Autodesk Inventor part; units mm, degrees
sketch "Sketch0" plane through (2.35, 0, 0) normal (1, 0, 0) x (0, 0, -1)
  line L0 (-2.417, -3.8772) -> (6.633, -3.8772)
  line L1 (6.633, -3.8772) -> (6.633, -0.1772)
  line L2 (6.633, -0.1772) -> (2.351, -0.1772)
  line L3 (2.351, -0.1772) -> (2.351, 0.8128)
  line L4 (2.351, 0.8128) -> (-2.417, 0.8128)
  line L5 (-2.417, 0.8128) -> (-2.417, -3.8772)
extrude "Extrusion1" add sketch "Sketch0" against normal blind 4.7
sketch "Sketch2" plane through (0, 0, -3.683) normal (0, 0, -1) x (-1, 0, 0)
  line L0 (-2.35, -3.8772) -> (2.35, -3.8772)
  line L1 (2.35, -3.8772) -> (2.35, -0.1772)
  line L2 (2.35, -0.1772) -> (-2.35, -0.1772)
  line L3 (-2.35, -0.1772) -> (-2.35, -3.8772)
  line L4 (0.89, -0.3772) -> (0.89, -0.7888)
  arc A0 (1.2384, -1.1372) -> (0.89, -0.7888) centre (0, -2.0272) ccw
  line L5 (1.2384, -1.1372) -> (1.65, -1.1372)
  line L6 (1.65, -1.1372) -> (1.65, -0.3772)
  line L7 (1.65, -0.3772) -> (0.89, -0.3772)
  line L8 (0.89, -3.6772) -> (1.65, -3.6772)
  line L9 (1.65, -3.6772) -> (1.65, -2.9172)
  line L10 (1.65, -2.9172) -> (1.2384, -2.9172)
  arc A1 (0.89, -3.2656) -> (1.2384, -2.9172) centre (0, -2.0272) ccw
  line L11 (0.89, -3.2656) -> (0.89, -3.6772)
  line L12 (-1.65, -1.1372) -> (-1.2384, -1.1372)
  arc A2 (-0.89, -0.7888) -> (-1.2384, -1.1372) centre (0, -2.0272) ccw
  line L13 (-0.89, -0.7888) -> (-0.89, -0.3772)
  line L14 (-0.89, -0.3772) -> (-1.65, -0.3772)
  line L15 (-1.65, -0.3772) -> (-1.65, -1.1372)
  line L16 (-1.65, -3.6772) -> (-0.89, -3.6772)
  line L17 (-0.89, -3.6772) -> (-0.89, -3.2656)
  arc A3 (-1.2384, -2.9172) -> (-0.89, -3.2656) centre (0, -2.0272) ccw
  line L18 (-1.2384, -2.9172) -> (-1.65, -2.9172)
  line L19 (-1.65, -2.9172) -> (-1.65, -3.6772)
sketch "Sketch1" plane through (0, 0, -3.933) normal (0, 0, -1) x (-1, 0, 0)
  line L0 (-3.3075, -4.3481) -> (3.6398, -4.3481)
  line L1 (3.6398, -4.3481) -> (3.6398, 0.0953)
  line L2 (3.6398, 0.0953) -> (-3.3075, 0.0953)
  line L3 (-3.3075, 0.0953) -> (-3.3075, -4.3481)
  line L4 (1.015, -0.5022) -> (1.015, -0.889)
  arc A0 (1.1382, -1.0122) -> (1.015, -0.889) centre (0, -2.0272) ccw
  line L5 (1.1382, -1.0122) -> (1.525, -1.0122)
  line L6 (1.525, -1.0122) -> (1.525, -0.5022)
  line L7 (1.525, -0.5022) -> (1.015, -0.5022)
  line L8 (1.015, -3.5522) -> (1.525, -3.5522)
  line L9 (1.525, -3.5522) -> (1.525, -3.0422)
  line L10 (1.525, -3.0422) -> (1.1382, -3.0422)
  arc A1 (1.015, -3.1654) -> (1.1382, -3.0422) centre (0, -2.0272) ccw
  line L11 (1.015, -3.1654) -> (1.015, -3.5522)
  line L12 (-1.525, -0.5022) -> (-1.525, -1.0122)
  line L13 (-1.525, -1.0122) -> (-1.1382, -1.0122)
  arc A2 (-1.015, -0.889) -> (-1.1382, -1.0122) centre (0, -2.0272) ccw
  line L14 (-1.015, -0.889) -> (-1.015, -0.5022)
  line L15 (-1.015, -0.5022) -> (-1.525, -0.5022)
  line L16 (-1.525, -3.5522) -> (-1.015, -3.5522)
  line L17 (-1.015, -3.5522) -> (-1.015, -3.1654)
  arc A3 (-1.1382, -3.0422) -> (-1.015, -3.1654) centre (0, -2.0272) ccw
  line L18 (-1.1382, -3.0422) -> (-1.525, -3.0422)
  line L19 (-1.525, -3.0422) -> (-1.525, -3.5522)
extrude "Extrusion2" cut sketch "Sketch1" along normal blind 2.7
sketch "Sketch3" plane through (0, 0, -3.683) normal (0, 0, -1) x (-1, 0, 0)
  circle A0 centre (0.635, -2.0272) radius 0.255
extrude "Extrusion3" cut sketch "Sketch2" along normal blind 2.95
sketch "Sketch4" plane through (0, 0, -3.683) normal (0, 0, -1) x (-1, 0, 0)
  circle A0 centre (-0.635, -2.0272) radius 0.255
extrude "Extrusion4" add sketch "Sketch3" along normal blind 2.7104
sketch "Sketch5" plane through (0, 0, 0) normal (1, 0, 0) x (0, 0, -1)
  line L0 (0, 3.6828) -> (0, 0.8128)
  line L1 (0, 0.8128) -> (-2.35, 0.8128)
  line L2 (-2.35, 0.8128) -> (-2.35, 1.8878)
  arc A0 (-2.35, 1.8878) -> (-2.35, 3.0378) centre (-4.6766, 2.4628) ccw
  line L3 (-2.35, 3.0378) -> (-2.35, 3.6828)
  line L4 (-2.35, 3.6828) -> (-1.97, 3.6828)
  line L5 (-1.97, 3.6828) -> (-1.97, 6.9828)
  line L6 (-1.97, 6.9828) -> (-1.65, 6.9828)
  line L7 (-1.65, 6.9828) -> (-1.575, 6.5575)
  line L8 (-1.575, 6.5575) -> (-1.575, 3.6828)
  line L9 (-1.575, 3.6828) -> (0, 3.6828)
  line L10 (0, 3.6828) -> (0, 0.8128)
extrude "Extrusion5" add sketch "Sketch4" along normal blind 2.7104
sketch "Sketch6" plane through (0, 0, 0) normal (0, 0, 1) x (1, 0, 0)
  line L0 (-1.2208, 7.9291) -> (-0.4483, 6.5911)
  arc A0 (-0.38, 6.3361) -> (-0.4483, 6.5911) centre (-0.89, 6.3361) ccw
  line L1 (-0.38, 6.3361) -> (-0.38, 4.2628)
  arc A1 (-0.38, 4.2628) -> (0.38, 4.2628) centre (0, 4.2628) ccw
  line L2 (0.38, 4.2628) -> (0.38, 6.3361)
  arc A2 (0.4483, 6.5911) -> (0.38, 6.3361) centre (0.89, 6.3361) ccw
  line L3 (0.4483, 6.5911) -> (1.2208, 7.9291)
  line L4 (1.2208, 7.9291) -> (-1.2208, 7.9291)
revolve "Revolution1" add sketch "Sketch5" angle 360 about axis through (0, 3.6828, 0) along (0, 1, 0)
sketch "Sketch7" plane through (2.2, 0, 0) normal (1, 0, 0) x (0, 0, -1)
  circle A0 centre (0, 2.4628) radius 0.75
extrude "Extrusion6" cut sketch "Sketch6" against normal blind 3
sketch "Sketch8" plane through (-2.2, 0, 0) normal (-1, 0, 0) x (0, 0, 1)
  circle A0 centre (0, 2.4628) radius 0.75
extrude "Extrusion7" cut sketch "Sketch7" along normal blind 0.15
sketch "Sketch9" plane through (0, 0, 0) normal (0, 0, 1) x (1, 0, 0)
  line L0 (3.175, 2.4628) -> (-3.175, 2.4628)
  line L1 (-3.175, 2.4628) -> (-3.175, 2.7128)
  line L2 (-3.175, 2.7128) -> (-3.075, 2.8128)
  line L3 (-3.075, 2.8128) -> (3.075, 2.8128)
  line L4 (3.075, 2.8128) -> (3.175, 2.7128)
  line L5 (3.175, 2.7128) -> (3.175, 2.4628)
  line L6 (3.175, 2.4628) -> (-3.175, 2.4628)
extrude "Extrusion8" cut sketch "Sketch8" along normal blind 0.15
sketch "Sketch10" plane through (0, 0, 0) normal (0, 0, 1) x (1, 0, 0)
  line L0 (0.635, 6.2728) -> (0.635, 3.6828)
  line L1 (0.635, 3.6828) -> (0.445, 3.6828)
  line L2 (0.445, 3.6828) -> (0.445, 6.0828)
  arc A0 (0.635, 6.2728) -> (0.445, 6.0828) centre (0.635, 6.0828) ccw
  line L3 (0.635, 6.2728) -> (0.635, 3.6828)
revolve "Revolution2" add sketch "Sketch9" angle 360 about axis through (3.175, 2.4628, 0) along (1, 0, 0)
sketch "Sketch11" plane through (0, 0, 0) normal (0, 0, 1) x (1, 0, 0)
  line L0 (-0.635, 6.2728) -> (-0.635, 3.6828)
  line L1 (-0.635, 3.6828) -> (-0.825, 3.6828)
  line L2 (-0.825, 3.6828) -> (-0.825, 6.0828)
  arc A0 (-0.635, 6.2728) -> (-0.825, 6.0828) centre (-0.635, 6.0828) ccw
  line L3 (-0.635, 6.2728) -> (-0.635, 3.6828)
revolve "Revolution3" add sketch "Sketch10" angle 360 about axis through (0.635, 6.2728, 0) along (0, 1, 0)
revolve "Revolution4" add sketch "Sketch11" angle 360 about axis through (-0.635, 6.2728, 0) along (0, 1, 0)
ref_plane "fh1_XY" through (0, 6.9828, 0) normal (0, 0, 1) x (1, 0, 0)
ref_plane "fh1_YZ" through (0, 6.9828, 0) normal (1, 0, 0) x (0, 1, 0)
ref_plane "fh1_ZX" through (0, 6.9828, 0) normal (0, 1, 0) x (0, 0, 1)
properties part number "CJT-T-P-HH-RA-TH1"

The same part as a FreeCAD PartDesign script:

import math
import FreeCAD as App
import Part
import Sketcher
from FreeCAD import Vector
Q = App.Units.Quantity


def add_polygon(sketch, points):
    """Adds a closed chain of lines whose ends are joined by coincident constraints."""
    first, n = sketch.GeometryCount, len(points)
    for a, b in zip(points, points[1:] + points[:1]):
        sketch.addGeometry(Part.LineSegment(App.Vector(*a, 0), App.Vector(*b, 0)), False)
    for i in range(n):
        sketch.addConstraint(Sketcher.Constraint("Coincident", first + i, 2, first + (i + 1) % n, 1))

doc = App.newDocument("Part")
body = doc.addObject("PartDesign::Body", "Body")

sketch1 = doc.addObject("Sketcher::SketchObject", "Sketch")
body.addObject(sketch1)
sketch1.AttachmentSupport = (doc.YZ_Plane, [""])
sketch1.MapMode = "FlatFace"
sketch1.AttachmentOffset = App.Placement(Vector(0, 0, 2.35), App.Rotation())
add_polygon(sketch1, [(0.8, 2.4), (-3.9, 2.4), (-3.9, -6.6), (-0.2, -6.6), (-0.2, -2.4), (0.8, -2.4)])
sketch1.addConstraint(Sketcher.Constraint("Horizontal", 0))
sketch1.addConstraint(Sketcher.Constraint("Vertical", 1))
sketch1.addConstraint(Sketcher.Constraint("Horizontal", 2))
sketch1.addConstraint(Sketcher.Constraint("Vertical", 3))
sketch1.addConstraint(Sketcher.Constraint("Horizontal", 4))
sketch1.addConstraint(Sketcher.Constraint("Vertical", 5))
sketch1.addConstraint(Sketcher.Constraint("DistanceX", 2, 1, 2, 2, 3.7))
sketch1.addConstraint(Sketcher.Constraint("DistanceX", 0, 2, 0, 1, 4.69))
sketch1.addConstraint(Sketcher.Constraint("DistanceY", 1, 2, 1, 1, 9.05))
sketch1.addConstraint(Sketcher.Constraint("DistanceY", 3, 1, 3, 2, 4.282))
sketch1.addConstraint(Sketcher.Constraint("DistanceY", -1, 1, 0, 2, 2.417))
sketch1.addConstraint(Sketcher.Constraint("DistanceX", 0, 2, -1, 1, 3.8772))
pad1 = doc.addObject("PartDesign::Pad", "Pad")
body.addObject(pad1)
pad1.Profile = sketch1
pad1.Length = 4.7
pad1.Reversed = True

sketch2 = doc.addObject("Sketcher::SketchObject", "Sketch001")
body.addObject(sketch2)
sketch2.AttachmentSupport = (doc.XY_Plane, [""])
sketch2.MapMode = "FlatFace"
sketch2.AttachmentOffset = App.Placement(Vector(0, 0, -3.933), App.Rotation())
add_polygon(sketch2, [(3.31, 0.1), (3.31, -4.35), (-3.64, -4.35), (-3.64, 0.1)])
sketch2.addGeometry(Part.LineSegment(Vector(1.01, -3.55, 0), Vector(1.52, -3.55, 0)), False)
sketch2.addGeometry(Part.LineSegment(Vector(1.52, -3.55, 0), Vector(1.52, -3.04, 0)), False)
sketch2.addGeometry(Part.LineSegment(Vector(1.52, -3.04, 0), Vector(1.14, -3.04, 0)), False)
sketch2.addGeometry(Part.ArcOfCircle(Part.Circle(Vector(0, -2.03, 0), Vector(0, 0, 1), 1.53), math.radians(-48.27), math.radians(-41.73)), False)
sketch2.addGeometry(Part.LineSegment(Vector(1.01, -3.17, 0), Vector(1.01, -3.55, 0)), False)
sketch2.addGeometry(Part.LineSegment(Vector(-1.52, -3.55, 0), Vector(-1.01, -3.55, 0)), False)
sketch2.addGeometry(Part.LineSegment(Vector(-1.01, -3.55, 0), Vector(-1.01, -3.17, 0)), False)
sketch2.addGeometry(Part.ArcOfCircle(Part.Circle(Vector(0, -2.03, 0), Vector(0, 0, 1), 1.53), math.radians(-138.27), math.radians(-131.73)), False)
sketch2.addGeometry(Part.LineSegment(Vector(-1.14, -3.04, 0), Vector(-1.52, -3.04, 0)), False)
sketch2.addGeometry(Part.LineSegment(Vector(-1.52, -3.04, 0), Vector(-1.52, -3.55, 0)), False)
sketch2.addGeometry(Part.LineSegment(Vector(1.52, -1.01, 0), Vector(1.52, -0.5, 0)), False)
sketch2.addGeometry(Part.LineSegment(Vector(1.52, -0.5, 0), Vector(1.01, -0.5, 0)), False)
sketch2.addGeometry(Part.LineSegment(Vector(1.01, -0.5, 0), Vector(1.01, -0.89, 0)), False)
sketch2.addGeometry(Part.ArcOfCircle(Part.Circle(Vector(0, -2.03, 0), Vector(0, 0, 1), 1.53), math.radians(41.73), math.radians(48.27)), False)
sketch2.addGeometry(Part.LineSegment(Vector(1.14, -1.01, 0), Vector(1.52, -1.01, 0)), False)
sketch2.addGeometry(Part.LineSegment(Vector(-1.01, -0.89, 0), Vector(-1.01, -0.5, 0)), False)
sketch2.addGeometry(Part.LineSegment(Vector(-1.01, -0.5, 0), Vector(-1.52, -0.5, 0)), False)
sketch2.addGeometry(Part.LineSegment(Vector(-1.52, -0.5, 0), Vector(-1.52, -1.01, 0)), False)
sketch2.addGeometry(Part.LineSegment(Vector(-1.52, -1.01, 0), Vector(-1.14, -1.01, 0)), False)
sketch2.addGeometry(Part.ArcOfCircle(Part.Circle(Vector(0, -2.03, 0), Vector(0, 0, 1), 1.53), math.radians(131.73), math.radians(138.27)), False)
sketch2.addConstraint(Sketcher.Constraint("Coincident", 4, 2, 5, 1))
sketch2.addConstraint(Sketcher.Constraint("Coincident", 5, 2, 6, 1))
sketch2.addConstraint(Sketcher.Constraint("Coincident", 6, 2, 7, 2))
sketch2.addConstraint(Sketcher.Constraint("Coincident", 7, 1, 8, 1))
sketch2.addConstraint(Sketcher.Constraint("Coincident", 8, 2, 4, 1))
sketch2.addConstraint(Sketcher.Constraint("Coincident", 9, 2, 10, 1))
sketch2.addConstraint(Sketcher.Constraint("Coincident", 10, 2, 11, 2))
sketch2.addConstraint(Sketcher.Constraint("Coincident", 11, 1, 12, 1))
sketch2.addConstraint(Sketcher.Constraint("Coincident", 12, 2, 13, 1))
sketch2.addConstraint(Sketcher.Constraint("Coincident", 13, 2, 9, 1))
sketch2.addConstraint(Sketcher.Constraint("Coincident", 14, 2, 15, 1))
sketch2.addConstraint(Sketcher.Constraint("Coincident", 15, 2, 16, 1))
sketch2.addConstraint(Sketcher.Constraint("Coincident", 16, 2, 17, 2))
sketch2.addConstraint(Sketcher.Constraint("Coincident", 17, 1, 18, 1))
sketch2.addConstraint(Sketcher.Constraint("Coincident", 18, 2, 14, 1))
sketch2.addConstraint(Sketcher.Constraint("Coincident", 19, 2, 20, 1))
sketch2.addConstraint(Sketcher.Constraint("Coincident", 20, 2, 21, 1))
sketch2.addConstraint(Sketcher.Constraint("Coincident", 21, 2, 22, 1))
sketch2.addConstraint(Sketcher.Constraint("Coincident", 22, 2, 23, 2))
sketch2.addConstraint(Sketcher.Constraint("Coincident", 23, 1, 19, 1))
sketch2.addConstraint(Sketcher.Constraint("Vertical", 0))
sketch2.addConstraint(Sketcher.Constraint("Horizontal", 1))
sketch2.addConstraint(Sketcher.Constraint("Vertical", 2))
sketch2.addConstraint(Sketcher.Constraint("Horizontal", 3))
sketch2.addConstraint(Sketcher.Constraint("Horizontal", 4))
sketch2.addConstraint(Sketcher.Constraint("Vertical", 5))
sketch2.addConstraint(Sketcher.Constraint("Horizontal", 6))
sketch2.addConstraint(Sketcher.Constraint("Vertical", 8))
sketch2.addConstraint(Sketcher.Constraint("Horizontal", 9))
sketch2.addConstraint(Sketcher.Constraint("Vertical", 10))
sketch2.addConstraint(Sketcher.Constraint("Horizontal", 12))
sketch2.addConstraint(Sketcher.Constraint("Vertical", 13))
sketch2.addConstraint(Sketcher.Constraint("Vertical", 14))
sketch2.addConstraint(Sketcher.Constraint("Horizontal", 15))
sketch2.addConstraint(Sketcher.Constraint("Vertical", 16))
sketch2.addConstraint(Sketcher.Constraint("Horizontal", 18))
sketch2.addConstraint(Sketcher.Constraint("Vertical", 19))
sketch2.addConstraint(Sketcher.Constraint("Horizontal", 20))
sketch2.addConstraint(Sketcher.Constraint("Vertical", 21))
sketch2.addConstraint(Sketcher.Constraint("Horizontal", 22))
sketch2.addConstraint(Sketcher.Constraint("Coincident", 11, 3, 7, 3))
sketch2.addConstraint(Sketcher.Constraint("Coincident", 17, 3, 7, 3))
sketch2.addConstraint(Sketcher.Constraint("Coincident", 23, 3, 7, 3))
sketch2.addConstraint(Sketcher.Constraint("Equal", 7, 11))
sketch2.addConstraint(Sketcher.Constraint("Equal", 11, 17))
sketch2.addConstraint(Sketcher.Constraint("Equal", 17, 23))
sketch2.addConstraint(Sketcher.Constraint("Symmetric", 8, 2, 9, 2, -2))
sketch2.addConstraint(Sketcher.Constraint("Symmetric", 6, 2, 11, 1, -2))
sketch2.addConstraint(Sketcher.Constraint("Symmetric", 15, 2, 19, 2, -2))
sketch2.addConstraint(Sketcher.Constraint("Symmetric", 18, 2, 21, 2, -2))
sketch2.addConstraint(Sketcher.Constraint("Vertical", 5, 2, 14, 2))
sketch2.addConstraint(Sketcher.Constraint("Vertical", 8, 2, 15, 2))
sketch2.addConstraint(Sketcher.Constraint("Vertical", 6, 2, 17, 1))
sketch2.addConstraint(Sketcher.Constraint("Vertical", 13, 2, 20, 2))
sketch2.addConstraint(Sketcher.Constraint("Equal", 20, 5))
sketch2.addConstraint(Sketcher.Constraint("Equal", 22, 8))
sketch2.addConstraint(Sketcher.Constraint("Equal", 13, 14))
sketch2.addConstraint(Sketcher.Constraint("Radius", 7, 1.525))
sketch2.addConstraint(Sketcher.Constraint("DistanceX", 4, 1, 4, 2, 0.51))
sketch2.addConstraint(Sketcher.Constraint("DistanceX", 9, 2, 8, 2, 2.03))
sketch2.addConstraint(Sketcher.Constraint("DistanceX", 1, 2, 1, 1, 6.9473))
sketch2.addConstraint(Sketcher.Constraint("DistanceY", 0, 2, 0, 1, 4.4434))
sketch2.addConstraint(Sketcher.Constraint("DistanceY", 0, 2, -1, 1, 4.348))
sketch2.addConstraint(Sketcher.Constraint("DistanceY", 16, 2, -1, 1, 0.889))
sketch2.addConstraint(Sketcher.Constraint("DistanceX", -1, 1, 0, 2, 3.3075))
pocket1 = doc.addObject("PartDesign::Pocket", "Pocket")
body.addObject(pocket1)
pocket1.Profile = sketch2
pocket1.Length = 2.7

sketch3 = doc.addObject("Sketcher::SketchObject", "Sketch002")
body.addObject(sketch3)
sketch3.AttachmentSupport = (doc.XY_Plane, [""])
sketch3.MapMode = "FlatFace"
sketch3.AttachmentOffset = App.Placement(Vector(0, 0, -3.683), App.Rotation())
add_polygon(sketch3, [(2.35, -0.18), (2.35, -3.88), (-2.35, -3.88), (-2.35, -0.18)])
sketch3.addGeometry(Part.LineSegment(Vector(0.89, -3.68, 0), Vector(1.65, -3.68, 0)), False)
sketch3.addGeometry(Part.LineSegment(Vector(1.65, -3.68, 0), Vector(1.65, -2.92, 0)), False)
sketch3.addGeometry(Part.LineSegment(Vector(1.65, -2.92, 0), Vector(1.24, -2.92, 0)), False)
sketch3.addGeometry(Part.ArcOfCircle(Part.Circle(Vector(0, -2.03, 0), Vector(0, 0, 1), 1.53), math.radians(-54.3), math.radians(-35.7)), False)
sketch3.addGeometry(Part.LineSegment(Vector(0.89, -3.27, 0), Vector(0.89, -3.68, 0)), False)
sketch3.addGeometry(Part.LineSegment(Vector(-1.65, -3.68, 0), Vector(-0.89, -3.68, 0)), False)
sketch3.addGeometry(Part.LineSegment(Vector(-0.89, -3.68, 0), Vector(-0.89, -3.27, 0)), False)
sketch3.addGeometry(Part.ArcOfCircle(Part.Circle(Vector(0, -2.03, 0), Vector(0, 0, 1), 1.53), math.radians(-144.3), math.radians(-125.7)), False)
sketch3.addGeometry(Part.LineSegment(Vector(-1.24, -2.92, 0), Vector(-1.65, -2.92, 0)), False)
sketch3.addGeometry(Part.LineSegment(Vector(-1.65, -2.92, 0), Vector(-1.65, -3.68, 0)), False)
sketch3.addGeometry(Part.LineSegment(Vector(1.24, -1.14, 0), Vector(1.65, -1.14, 0)), False)
sketch3.addGeometry(Part.LineSegment(Vector(1.65, -1.14, 0), Vector(1.65, -0.38, 0)), False)
sketch3.addGeometry(Part.LineSegment(Vector(1.65, -0.38, 0), Vector(0.89, -0.38, 0)), False)
sketch3.addGeometry(Part.LineSegment(Vector(0.89, -0.38, 0), Vector(0.89, -0.79, 0)), False)
sketch3.addGeometry(Part.ArcOfCircle(Part.Circle(Vector(0, -2.03, 0), Vector(0, 0, 1), 1.53), math.radians(35.7), math.radians(54.3)), False)
sketch3.addGeometry(Part.LineSegment(Vector(-0.89, -0.79, 0), Vector(-0.89, -0.38, 0)), False)
sketch3.addGeometry(Part.LineSegment(Vector(-0.89, -0.38, 0), Vector(-1.65, -0.38, 0)), False)
sketch3.addGeometry(Part.LineSegment(Vector(-1.65, -0.38, 0), Vector(-1.65, -1.14, 0)), False)
sketch3.addGeometry(Part.LineSegment(Vector(-1.65, -1.14, 0), Vector(-1.24, -1.14, 0)), False)
sketch3.addGeometry(Part.ArcOfCircle(Part.Circle(Vector(0, -2.03, 0), Vector(0, 0, 1), 1.53), math.radians(125.7), math.radians(144.3)), False)
sketch3.addConstraint(Sketcher.Constraint("Coincident", 4, 2, 5, 1))
sketch3.addConstraint(Sketcher.Constraint("Coincident", 5, 2, 6, 1))
sketch3.addConstraint(Sketcher.Constraint("Coincident", 6, 2, 7, 2))
sketch3.addConstraint(Sketcher.Constraint("Coincident", 7, 1, 8, 1))
sketch3.addConstraint(Sketcher.Constraint("Coincident", 8, 2, 4, 1))
sketch3.addConstraint(Sketcher.Constraint("Coincident", 9, 2, 10, 1))
sketch3.addConstraint(Sketcher.Constraint("Coincident", 10, 2, 11, 2))
sketch3.addConstraint(Sketcher.Constraint("Coincident", 11, 1, 12, 1))
sketch3.addConstraint(Sketcher.Constraint("Coincident", 12, 2, 13, 1))
sketch3.addConstraint(Sketcher.Constraint("Coincident", 13, 2, 9, 1))
sketch3.addConstraint(Sketcher.Constraint("Coincident", 14, 2, 15, 1))
sketch3.addConstraint(Sketcher.Constraint("Coincident", 15, 2, 16, 1))
sketch3.addConstraint(Sketcher.Constraint("Coincident", 16, 2, 17, 1))
sketch3.addConstraint(Sketcher.Constraint("Coincident", 17, 2, 18, 2))
sketch3.addConstraint(Sketcher.Constraint("Coincident", 18, 1, 14, 1))
sketch3.addConstraint(Sketcher.Constraint("Coincident", 19, 2, 20, 1))
sketch3.addConstraint(Sketcher.Constraint("Coincident", 20, 2, 21, 1))
sketch3.addConstraint(Sketcher.Constraint("Coincident", 21, 2, 22, 1))
sketch3.addConstraint(Sketcher.Constraint("Coincident", 22, 2, 23, 2))
sketch3.addConstraint(Sketcher.Constraint("Coincident", 23, 1, 19, 1))
sketch3.addConstraint(Sketcher.Constraint("Vertical", 0))
sketch3.addConstraint(Sketcher.Constraint("Horizontal", 1))
sketch3.addConstraint(Sketcher.Constraint("Vertical", 2))
sketch3.addConstraint(Sketcher.Constraint("Horizontal", 3))
sketch3.addConstraint(Sketcher.Constraint("Horizontal", 4))
sketch3.addConstraint(Sketcher.Constraint("Vertical", 5))
sketch3.addConstraint(Sketcher.Constraint("Horizontal", 6))
sketch3.addConstraint(Sketcher.Constraint("Vertical", 8))
sketch3.addConstraint(Sketcher.Constraint("Horizontal", 9))
sketch3.addConstraint(Sketcher.Constraint("Vertical", 10))
sketch3.addConstraint(Sketcher.Constraint("Horizontal", 12))
sketch3.addConstraint(Sketcher.Constraint("Vertical", 13))
sketch3.addConstraint(Sketcher.Constraint("Horizontal", 14))
sketch3.addConstraint(Sketcher.Constraint("Vertical", 15))
sketch3.addConstraint(Sketcher.Constraint("Horizontal", 16))
sketch3.addConstraint(Sketcher.Constraint("Vertical", 17))
sketch3.addConstraint(Sketcher.Constraint("Vertical", 19))
sketch3.addConstraint(Sketcher.Constraint("Horizontal", 20))
sketch3.addConstraint(Sketcher.Constraint("Vertical", 21))
sketch3.addConstraint(Sketcher.Constraint("Horizontal", 22))
sketch3.addConstraint(Sketcher.Constraint("Coincident", 11, 3, 7, 3))
sketch3.addConstraint(Sketcher.Constraint("Coincident", 18, 3, 7, 3))
sketch3.addConstraint(Sketcher.Constraint("Coincident", 23, 3, 7, 3))
sketch3.addConstraint(Sketcher.Constraint("Equal", 7, 11))
sketch3.addConstraint(Sketcher.Constraint("Equal", 11, 18))
sketch3.addConstraint(Sketcher.Constraint("Equal", 18, 23))
sketch3.addConstraint(Sketcher.Constraint("Symmetric", 8, 2, 9, 2, -2))
sketch3.addConstraint(Sketcher.Constraint("Symmetric", 6, 2, 11, 1, -2))
sketch3.addConstraint(Sketcher.Constraint("Symmetric", 16, 2, 19, 2, -2))
sketch3.addConstraint(Sketcher.Constraint("Symmetric", 14, 2, 21, 2, -2))
sketch3.addConstraint(Sketcher.Constraint("Vertical", 5, 2, 14, 2))
sketch3.addConstraint(Sketcher.Constraint("Vertical", 8, 2, 16, 2))
sketch3.addConstraint(Sketcher.Constraint("Vertical", 6, 2, 18, 1))
sketch3.addConstraint(Sketcher.Constraint("Vertical", 13, 2, 20, 2))
sketch3.addConstraint(Sketcher.Constraint("Equal", 20, 5))
sketch3.addConstraint(Sketcher.Constraint("Equal", 22, 8))
sketch3.addConstraint(Sketcher.Constraint("Equal", 13, 15))
sketch3.addConstraint(Sketcher.Constraint("DistanceX", 1, 2, 1, 1, 4.7))
sketch3.addConstraint(Sketcher.Constraint("DistanceY", 0, 2, 0, 1, 3.7))
sketch3.addConstraint(Sketcher.Constraint("Radius", 7, 1.525))
sketch3.addConstraint(Sketcher.Constraint("DistanceX", 4, 1, 4, 2, 0.76))
sketch3.addConstraint(Sketcher.Constraint("DistanceX", 4, 2, 0, 2, 0.7))
sketch3.addConstraint(Sketcher.Constraint("DistanceY", 0, 2, 4, 2, 0.2))
sketch3.addConstraint(Sketcher.Constraint("DistanceX", 1, 2, 12, 2, 0.7))
sketch3.addConstraint(Sketcher.Constraint("DistanceY", 7, 3, -1, 1, 2.0272))
pocket2 = doc.addObject("PartDesign::Pocket", "Pocket001")
body.addObject(pocket2)
pocket2.Profile = sketch3
pocket2.Length = 2.95

sketch4 = doc.addObject("Sketcher::SketchObject", "Sketch003")
body.addObject(sketch4)
sketch4.AttachmentSupport = (doc.XY_Plane, [""])
sketch4.MapMode = "FlatFace"
sketch4.AttachmentOffset = App.Placement(Vector(0, 0, -3.683), App.Rotation())
sketch4.addGeometry(Part.Circle(Vector(-0.64, -2.03, 0), Vector(0, 0, 1), 0.26), False)
sketch4.addConstraint(Sketcher.Constraint("Diameter", 0, 0.51))
sketch4.addConstraint(Sketcher.Constraint("DistanceX", 0, 3, -1, 1, 0.635))
sketch4.addConstraint(Sketcher.Constraint("DistanceY", 0, 3, -1, 1, 2.0272))
pad2 = doc.addObject("PartDesign::Pad", "Pad001")
body.addObject(pad2)
pad2.Profile = sketch4
pad2.Length = 2.7104
pad2.Reversed = True

sketch5 = doc.addObject("Sketcher::SketchObject", "Sketch004")
body.addObject(sketch5)
sketch5.AttachmentSupport = (doc.XY_Plane, [""])
sketch5.MapMode = "FlatFace"
sketch5.AttachmentOffset = App.Placement(Vector(0, 0, -3.683), App.Rotation())
sketch5.addGeometry(Part.Circle(Vector(0.64, -2.03, 0), Vector(0, 0, 1), 0.26), False)
sketch5.addConstraint(Sketcher.Constraint("Diameter", 0, 0.51))
sketch5.addConstraint(Sketcher.Constraint("DistanceX", -1, 1, 0, 3, 0.635))
sketch5.addConstraint(Sketcher.Constraint("DistanceY", 0, 3, -1, 1, 2.0272))
pad3 = doc.addObject("PartDesign::Pad", "Pad002")
body.addObject(pad3)
pad3.Profile = sketch5
pad3.Length = 2.7104
pad3.Reversed = True

sketch6 = doc.addObject("Sketcher::SketchObject", "Sketch005")
body.addObject(sketch6)
sketch6.AttachmentSupport = (doc.YZ_Plane, [""])
sketch6.MapMode = "FlatFace"
sketch6.addGeometry(Part.LineSegment(Vector(0.81, 0, 0), Vector(3.68, 0, 0)), False)
sketch6.addGeometry(Part.LineSegment(Vector(3.68, 0, 0), Vector(3.68, 1.57, 0)), False)
sketch6.addGeometry(Part.LineSegment(Vector(3.68, 1.57, 0), Vector(6.56, 1.57, 0)), False)
sketch6.addGeometry(Part.LineSegment(Vector(6.56, 1.57, 0), Vector(6.98, 1.65, 0)), False)
sketch6.addGeometry(Part.LineSegment(Vector(6.98, 1.65, 0), Vector(6.98, 1.97, 0)), False)
sketch6.addGeometry(Part.LineSegment(Vector(6.98, 1.97, 0), Vector(3.68, 1.97, 0)), False)
sketch6.addGeometry(Part.LineSegment(Vector(3.68, 1.97, 0), Vector(3.68, 2.35, 0)), False)
sketch6.addGeometry(Part.LineSegment(Vector(3.68, 2.35, 0), Vector(3.04, 2.35, 0)), False)
sketch6.addGeometry(Part.ArcOfCircle(Part.Circle(Vector(2.46, 4.68, 0), Vector(0, 0, 1), 2.4), math.radians(-104), math.radians(-76)), False)
sketch6.addGeometry(Part.LineSegment(Vector(1.89, 2.35, 0), Vector(0.81, 2.35, 0)), False)
sketch6.addGeometry(Part.LineSegment(Vector(0.81, 2.35, 0), Vector(0.81, 0, 0)), False)
sketch6.addConstraint(Sketcher.Constraint("Coincident", 0, 2, 1, 1))
sketch6.addConstraint(Sketcher.Constraint("Coincident", 1, 2, 2, 1))
sketch6.addConstraint(Sketcher.Constraint("Coincident", 2, 2, 3, 1))
sketch6.addConstraint(Sketcher.Constraint("Coincident", 3, 2, 4, 1))
sketch6.addConstraint(Sketcher.Constraint("Coincident", 4, 2, 5, 1))
sketch6.addConstraint(Sketcher.Constraint("Coincident", 5, 2, 6, 1))
sketch6.addConstraint(Sketcher.Constraint("Coincident", 6, 2, 7, 1))
sketch6.addConstraint(Sketcher.Constraint("Coincident", 7, 2, 8, 2))
sketch6.addConstraint(Sketcher.Constraint("Coincident", 8, 1, 9, 1))
sketch6.addConstraint(Sketcher.Constraint("Coincident", 9, 2, 10, 1))
sketch6.addConstraint(Sketcher.Constraint("Coincident", 10, 2, 0, 1))
sketch6.addConstraint(Sketcher.Constraint("Horizontal", 0))
sketch6.addConstraint(Sketcher.Constraint("Vertical", 1))
sketch6.addConstraint(Sketcher.Constraint("Horizontal", 2))
sketch6.addConstraint(Sketcher.Constraint("Vertical", 4))
sketch6.addConstraint(Sketcher.Constraint("Horizontal", 5))
sketch6.addConstraint(Sketcher.Constraint("Vertical", 6))
sketch6.addConstraint(Sketcher.Constraint("Horizontal", 7))
sketch6.addConstraint(Sketcher.Constraint("Horizontal", 9))
sketch6.addConstraint(Sketcher.Constraint("Vertical", 10))
sketch6.addConstraint(Sketcher.Constraint("PointOnObject", 0, 2, -1))
sketch6.addConstraint(Sketcher.Constraint("Horizontal", 7, 2, 8, 1))
sketch6.addConstraint(Sketcher.Constraint("Vertical", 1, 2, 5, 2))
sketch6.addConstraint(Sketcher.Constraint("Angle", 3, Q("10.001 deg")))
sketch6.addConstraint(Sketcher.Constraint("DistanceX", 5, 2, 5, 1, 3.3))
sketch6.addConstraint(Sketcher.Constraint("DistanceX", 0, 1, 0, 2, 2.87))
sketch6.addConstraint(Sketcher.Constraint("DistanceY", 4, 1, 4, 2, 0.32))
sketch6.addConstraint(Sketcher.Constraint("DistanceY", 6, 1, 6, 2, 0.38))
sketch6.addConstraint(Sketcher.Constraint("DistanceY", 10, 2, 10, 1, 2.35))
sketch6.addConstraint(Sketcher.Constraint("Radius", 8, 2.3966))
sketch6.addConstraint(Sketcher.Constraint("DistanceX", 7, 2, 7, 1, 0.645))
sketch6.addConstraint(Sketcher.Constraint("DistanceX", 9, 2, 9, 1, 1.075))
sketch6.addConstraint(Sketcher.Constraint("DistanceY", 1, 1, 1, 2, 1.575))
sketch6.addConstraint(Sketcher.Constraint("DistanceX", -1, 1, 8, 3, 2.4628))
revolution = doc.addObject("PartDesign::Revolution", "Revolution")
body.addObject(revolution)
revolution.Profile = sketch6
revolution.ReferenceAxis = (sketch6, ["H_Axis"])
revolution.Angle = 360

sketch7 = doc.addObject("Sketcher::SketchObject", "Sketch006")
body.addObject(sketch7)
sketch7.AttachmentSupport = (doc.XY_Plane, [""])
sketch7.MapMode = "FlatFace"
sketch7.addGeometry(Part.LineSegment(Vector(1.22, 7.93, 0), Vector(-1.22, 7.93, 0)), False)
sketch7.addGeometry(Part.LineSegment(Vector(-1.22, 7.93, 0), Vector(-0.45, 6.59, 0)), False)
sketch7.addGeometry(Part.ArcOfCircle(Part.Circle(Vector(-0.89, 6.34, 0), Vector(0, 0, 1), 0.51), math.radians(0), math.radians(30)), False)
sketch7.addGeometry(Part.LineSegment(Vector(-0.38, 6.34, 0), Vector(-0.38, 4.26, 0)), False)
sketch7.addGeometry(Part.ArcOfCircle(Part.Circle(Vector(0, 4.26, 0), Vector(0, 0, 1), 0.38), math.radians(180), math.radians(360)), False)
sketch7.addGeometry(Part.LineSegment(Vector(0.38, 4.26, 0), Vector(0.38, 6.34, 0)), False)
sketch7.addGeometry(Part.ArcOfCircle(Part.Circle(Vector(0.89, 6.34, 0), Vector(0, 0, 1), 0.51), math.radians(150), math.radians(180)), False)
sketch7.addGeometry(Part.LineSegment(Vector(0.45, 6.59, 0), Vector(1.22, 7.93, 0)), False)
sketch7.addConstraint(Sketcher.Constraint("Coincident", 0, 2, 1, 1))
sketch7.addConstraint(Sketcher.Constraint("Tangent", 1, 2, 2, 2))
sketch7.addConstraint(Sketcher.Constraint("Tangent", 2, 1, 3, 1))
sketch7.addConstraint(Sketcher.Constraint("Tangent", 3, 2, 4, 1))
sketch7.addConstraint(Sketcher.Constraint("Tangent", 4, 2, 5, 1))
sketch7.addConstraint(Sketcher.Constraint("Tangent", 5, 2, 6, 2))
sketch7.addConstraint(Sketcher.Constraint("Tangent", 6, 1, 7, 1))
sketch7.addConstraint(Sketcher.Constraint("Coincident", 7, 2, 0, 1))
sketch7.addConstraint(Sketcher.Constraint("Horizontal", 0))
sketch7.addConstraint(Sketcher.Constraint("Vertical", 3))
sketch7.addConstraint(Sketcher.Constraint("Vertical", 5))
sketch7.addConstraint(Sketcher.Constraint("Equal", 2, 6))
sketch7.addConstraint(Sketcher.Constraint("Symmetric", 2, 3, 6, 3, -2))
sketch7.addConstraint(Sketcher.Constraint("Horizontal", 1, 2, 6, 1))
sketch7.addConstraint(Sketcher.Constraint("Angle", 1, Q("-59.9998 deg")))
sketch7.addConstraint(Sketcher.Constraint("Radius", 2, 0.51))
sketch7.addConstraint(Sketcher.Constraint("Radius", 4, 0.38))
sketch7.addConstraint(Sketcher.Constraint("Distance", 1, 1.545))
sketch7.addConstraint(Sketcher.Constraint("DistanceY", 3, 2, 3, 1, 2.0733))
sketch7.addConstraint(Sketcher.Constraint("DistanceY", -1, 1, 2, 3, 6.336))
pocket3 = doc.addObject("PartDesign::Pocket", "Pocket002")
body.addObject(pocket3)
pocket3.Profile = sketch7
pocket3.Length = 3

sketch8 = doc.addObject("Sketcher::SketchObject", "Sketch007")
body.addObject(sketch8)
sketch8.AttachmentSupport = (doc.YZ_Plane, [""])
sketch8.MapMode = "FlatFace"
sketch8.AttachmentOffset = App.Placement(Vector(0, 0, 2.2), App.Rotation())
sketch8.addGeometry(Part.Circle(Vector(2.5, 0, 0), Vector(0, 0, 1), 0.8), False)
sketch8.addConstraint(Sketcher.Constraint("PointOnObject", 0, 3, -1))
sketch8.addConstraint(Sketcher.Constraint("Diameter", 0, 1.5))
sketch8.addConstraint(Sketcher.Constraint("DistanceX", -1, 1, 0, 3, 2.4628))
pocket4 = doc.addObject("PartDesign::Pocket", "Pocket003")
body.addObject(pocket4)
pocket4.Profile = sketch8
pocket4.Length = 0.15
pocket4.Reversed = True

sketch9 = doc.addObject("Sketcher::SketchObject", "Sketch008")
body.addObject(sketch9)
sketch9.AttachmentSupport = (doc.YZ_Plane, [""])
sketch9.MapMode = "FlatFace"
sketch9.AttachmentOffset = App.Placement(Vector(0, 0, -2.2), App.Rotation())
sketch9.addGeometry(Part.Circle(Vector(2.5, 0, 0), Vector(0, 0, 1), 0.8), False)
sketch9.addConstraint(Sketcher.Constraint("PointOnObject", 0, 3, -1))
sketch9.addConstraint(Sketcher.Constraint("Diameter", 0, 1.5))
sketch9.addConstraint(Sketcher.Constraint("DistanceX", -1, 1, 0, 3, 2.4628))
pocket5 = doc.addObject("PartDesign::Pocket", "Pocket004")
body.addObject(pocket5)
pocket5.Profile = sketch9
pocket5.Length = 0.15

sketch10 = doc.addObject("Sketcher::SketchObject", "Sketch009")
body.addObject(sketch10)
sketch10.AttachmentSupport = (doc.XY_Plane, [""])
sketch10.MapMode = "FlatFace"
add_polygon(sketch10, [(-3.17, 2.46), (3.17, 2.46), (3.17, 2.71), (3.08, 2.81), (-3.08, 2.81), (-3.17, 2.71)])
sketch10.addGeometry(Part.LineSegment(Vector(-3.17, 2.46, 0), Vector(3.17, 2.46, 0)), True)
sketch10.addConstraint(Sketcher.Constraint("Horizontal", 0))
sketch10.addConstraint(Sketcher.Constraint("Vertical", 1))
sketch10.addConstraint(Sketcher.Constraint("Horizontal", 3))
sketch10.addConstraint(Sketcher.Constraint("Vertical", 5))
sketch10.addConstraint(Sketcher.Constraint("Horizontal", 6))
sketch10.addConstraint(Sketcher.Constraint("Coincident", 6, 1, 5, 2))
sketch10.addConstraint(Sketcher.Constraint("Symmetric", 1, 2, 4, 2, -2))
sketch10.addConstraint(Sketcher.Constraint("Perpendicular", 2, 4))
sketch10.addConstraint(Sketcher.Constraint("Vertical", 1, 2, 6, 2))
sketch10.addConstraint(Sketcher.Constraint("Equal", 2, 4))
sketch10.addConstraint(Sketcher.Constraint("DistanceX", 0, 1, 0, 2, 6.35))
sketch10.addConstraint(Sketcher.Constraint("DistanceX", 3, 2, 3, 1, 6.15))
sketch10.addConstraint(Sketcher.Constraint("DistanceY", 1, 1, 1, 2, 0.25))
sketch10.addConstraint(Sketcher.Constraint("DistanceY", -1, 1, 0, 2, 2.4628))
revolution2 = doc.addObject("PartDesign::Revolution", "Revolution001")
body.addObject(revolution2)
revolution2.Profile = sketch10
revolution2.ReferenceAxis = (sketch10, ["Axis0"])
revolution2.Angle = 360

sketch11 = doc.addObject("Sketcher::SketchObject", "Sketch010")
body.addObject(sketch11)
sketch11.AttachmentSupport = (doc.XY_Plane, [""])
sketch11.MapMode = "FlatFace"
sketch11.addGeometry(Part.LineSegment(Vector(0.64, 3.68, 0), Vector(0.64, 6.27, 0)), False)
sketch11.addGeometry(Part.ArcOfCircle(Part.Circle(Vector(0.64, 6.08, 0), Vector(0, 0, 1), 0.19), math.radians(90), math.radians(180)), False)
sketch11.addGeometry(Part.LineSegment(Vector(0.45, 6.08, 0), Vector(0.45, 3.68, 0)), False)
sketch11.addGeometry(Part.LineSegment(Vector(0.45, 3.68, 0), Vector(0.64, 3.68, 0)), False)
sketch11.addGeometry(Part.LineSegment(Vector(0.64, 3.68, 0), Vector(0.64, 6.27, 0)), True)
sketch11.addConstraint(Sketcher.Constraint("Coincident", 0, 2, 1, 1))
sketch11.addConstraint(Sketcher.Constraint("Tangent", 1, 2, 2, 1))
sketch11.addConstraint(Sketcher.Constraint("Coincident", 2, 2, 3, 1))
sketch11.addConstraint(Sketcher.Constraint("Coincident", 3, 2, 0, 1))
sketch11.addConstraint(Sketcher.Constraint("Vertical", 0))
sketch11.addConstraint(Sketcher.Constraint("Vertical", 2))
sketch11.addConstraint(Sketcher.Constraint("Horizontal", 3))
sketch11.addConstraint(Sketcher.Constraint("Vertical", 4))
sketch11.addConstraint(Sketcher.Constraint("Coincident", 4, 1, 3, 2))
sketch11.addConstraint(Sketcher.Constraint("Vertical", 1, 3, 0, 2))
sketch11.addConstraint(Sketcher.Constraint("Equal", 0, 4))
sketch11.addConstraint(Sketcher.Constraint("Radius", 1, 0.19))
sketch11.addConstraint(Sketcher.Constraint("DistanceY", 2, 2, 2, 1, 2.4))
sketch11.addConstraint(Sketcher.Constraint("DistanceX", -1, 1, 1, 3, 0.635))
sketch11.addConstraint(Sketcher.Constraint("DistanceY", -1, 1, 1, 3, 6.0828))
revolution3 = doc.addObject("PartDesign::Revolution", "Revolution002")
body.addObject(revolution3)
revolution3.Profile = sketch11
revolution3.ReferenceAxis = (sketch11, ["Axis0"])
revolution3.Angle = 360

sketch12 = doc.addObject("Sketcher::SketchObject", "Sketch011")
body.addObject(sketch12)
sketch12.AttachmentSupport = (doc.XY_Plane, [""])
sketch12.MapMode = "FlatFace"
sketch12.addGeometry(Part.LineSegment(Vector(-0.64, 3.68, 0), Vector(-0.64, 6.27, 0)), False)
sketch12.addGeometry(Part.ArcOfCircle(Part.Circle(Vector(-0.64, 6.08, 0), Vector(0, 0, 1), 0.19), math.radians(90), math.radians(180)), False)
sketch12.addGeometry(Part.LineSegment(Vector(-0.82, 6.08, 0), Vector(-0.82, 3.68, 0)), False)
sketch12.addGeometry(Part.LineSegment(Vector(-0.82, 3.68, 0), Vector(-0.64, 3.68, 0)), False)
sketch12.addGeometry(Part.LineSegment(Vector(-0.64, 3.68, 0), Vector(-0.64, 6.27, 0)), True)
sketch12.addConstraint(Sketcher.Constraint("Coincident", 0, 2, 1, 1))
sketch12.addConstraint(Sketcher.Constraint("Tangent", 1, 2, 2, 1))
sketch12.addConstraint(Sketcher.Constraint("Coincident", 2, 2, 3, 1))
sketch12.addConstraint(Sketcher.Constraint("Coincident", 3, 2, 0, 1))
sketch12.addConstraint(Sketcher.Constraint("Vertical", 0))
sketch12.addConstraint(Sketcher.Constraint("Vertical", 2))
sketch12.addConstraint(Sketcher.Constraint("Horizontal", 3))
sketch12.addConstraint(Sketcher.Constraint("Vertical", 4))
sketch12.addConstraint(Sketcher.Constraint("Coincident", 4, 1, 3, 2))
sketch12.addConstraint(Sketcher.Constraint("Vertical", 1, 3, 0, 2))
sketch12.addConstraint(Sketcher.Constraint("Equal", 0, 4))
sketch12.addConstraint(Sketcher.Constraint("Radius", 1, 0.19))
sketch12.addConstraint(Sketcher.Constraint("DistanceY", 2, 2, 2, 1, 2.4))
sketch12.addConstraint(Sketcher.Constraint("DistanceX", 1, 3, -1, 1, 0.635))
sketch12.addConstraint(Sketcher.Constraint("DistanceY", -1, 1, 1, 3, 6.0828))
revolution4 = doc.addObject("PartDesign::Revolution", "Revolution003")
body.addObject(revolution4)
revolution4.Profile = sketch12
revolution4.ReferenceAxis = (sketch12, ["Axis0"])
revolution4.Angle = 360

doc.recompute()
